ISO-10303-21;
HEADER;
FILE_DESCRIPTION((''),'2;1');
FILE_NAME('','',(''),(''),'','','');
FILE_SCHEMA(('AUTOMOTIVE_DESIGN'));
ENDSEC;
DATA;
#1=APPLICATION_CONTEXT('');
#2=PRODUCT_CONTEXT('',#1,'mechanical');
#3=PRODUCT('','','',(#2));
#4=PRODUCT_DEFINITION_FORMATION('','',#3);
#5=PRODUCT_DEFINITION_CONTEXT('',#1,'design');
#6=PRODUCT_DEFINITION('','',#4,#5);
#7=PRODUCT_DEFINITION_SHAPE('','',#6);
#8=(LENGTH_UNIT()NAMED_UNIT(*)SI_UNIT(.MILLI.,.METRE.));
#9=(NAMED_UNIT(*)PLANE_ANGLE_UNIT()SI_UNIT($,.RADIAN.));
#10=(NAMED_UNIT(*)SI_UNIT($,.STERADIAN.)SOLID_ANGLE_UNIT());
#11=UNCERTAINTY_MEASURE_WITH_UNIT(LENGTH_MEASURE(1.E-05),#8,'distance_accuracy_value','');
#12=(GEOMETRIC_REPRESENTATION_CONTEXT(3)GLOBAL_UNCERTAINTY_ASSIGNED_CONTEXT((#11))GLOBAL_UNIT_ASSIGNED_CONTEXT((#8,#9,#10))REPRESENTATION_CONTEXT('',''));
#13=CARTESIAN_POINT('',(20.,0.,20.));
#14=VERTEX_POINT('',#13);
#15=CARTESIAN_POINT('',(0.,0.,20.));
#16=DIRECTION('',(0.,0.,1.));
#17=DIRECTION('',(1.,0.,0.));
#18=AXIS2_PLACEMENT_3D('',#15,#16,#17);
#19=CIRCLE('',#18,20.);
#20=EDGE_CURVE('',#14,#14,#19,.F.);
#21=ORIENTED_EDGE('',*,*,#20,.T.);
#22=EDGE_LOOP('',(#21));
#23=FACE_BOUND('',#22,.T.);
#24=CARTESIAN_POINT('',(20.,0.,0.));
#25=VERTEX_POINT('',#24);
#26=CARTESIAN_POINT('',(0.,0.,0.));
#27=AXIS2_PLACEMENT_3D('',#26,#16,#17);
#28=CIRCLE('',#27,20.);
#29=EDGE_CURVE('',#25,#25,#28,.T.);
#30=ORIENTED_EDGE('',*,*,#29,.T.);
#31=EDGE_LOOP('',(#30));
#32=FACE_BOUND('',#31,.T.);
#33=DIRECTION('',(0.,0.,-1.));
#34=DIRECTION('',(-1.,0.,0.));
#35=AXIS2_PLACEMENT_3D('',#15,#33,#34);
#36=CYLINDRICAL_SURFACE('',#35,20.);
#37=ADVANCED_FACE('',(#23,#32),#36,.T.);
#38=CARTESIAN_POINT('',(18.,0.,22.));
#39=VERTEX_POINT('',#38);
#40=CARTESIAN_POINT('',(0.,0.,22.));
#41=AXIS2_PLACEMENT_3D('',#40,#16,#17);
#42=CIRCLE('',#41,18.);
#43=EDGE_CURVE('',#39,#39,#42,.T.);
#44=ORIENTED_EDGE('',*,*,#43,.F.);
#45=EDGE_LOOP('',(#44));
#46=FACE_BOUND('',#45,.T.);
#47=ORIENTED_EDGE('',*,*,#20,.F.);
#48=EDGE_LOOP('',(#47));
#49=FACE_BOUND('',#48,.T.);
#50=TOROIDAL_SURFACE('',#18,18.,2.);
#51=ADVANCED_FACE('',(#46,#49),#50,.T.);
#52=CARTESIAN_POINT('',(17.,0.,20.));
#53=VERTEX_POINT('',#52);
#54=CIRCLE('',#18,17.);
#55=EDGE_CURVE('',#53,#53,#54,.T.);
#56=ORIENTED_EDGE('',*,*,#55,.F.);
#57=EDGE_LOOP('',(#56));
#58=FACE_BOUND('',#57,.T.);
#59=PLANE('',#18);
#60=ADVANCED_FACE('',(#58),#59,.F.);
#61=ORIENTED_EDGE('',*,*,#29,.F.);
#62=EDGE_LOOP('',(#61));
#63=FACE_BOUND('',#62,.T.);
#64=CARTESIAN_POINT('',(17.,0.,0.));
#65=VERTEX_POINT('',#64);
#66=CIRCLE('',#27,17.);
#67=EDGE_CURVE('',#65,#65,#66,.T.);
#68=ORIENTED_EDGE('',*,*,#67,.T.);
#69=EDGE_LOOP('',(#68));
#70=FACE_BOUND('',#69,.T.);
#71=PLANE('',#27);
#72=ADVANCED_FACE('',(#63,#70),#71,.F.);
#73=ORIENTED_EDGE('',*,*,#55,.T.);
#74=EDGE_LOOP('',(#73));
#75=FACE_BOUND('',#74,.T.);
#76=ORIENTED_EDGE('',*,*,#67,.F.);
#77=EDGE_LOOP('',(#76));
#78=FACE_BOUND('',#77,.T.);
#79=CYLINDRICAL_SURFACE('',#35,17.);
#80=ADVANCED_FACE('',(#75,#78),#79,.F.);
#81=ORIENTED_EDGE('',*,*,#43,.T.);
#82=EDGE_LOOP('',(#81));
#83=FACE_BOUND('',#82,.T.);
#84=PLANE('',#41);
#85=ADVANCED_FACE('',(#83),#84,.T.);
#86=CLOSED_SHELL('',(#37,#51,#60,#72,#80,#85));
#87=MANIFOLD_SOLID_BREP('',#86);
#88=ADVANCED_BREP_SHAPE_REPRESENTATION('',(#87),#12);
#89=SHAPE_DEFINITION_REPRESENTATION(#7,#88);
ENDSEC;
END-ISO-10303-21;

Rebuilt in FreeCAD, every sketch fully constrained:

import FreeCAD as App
import Part
import Sketcher


def edges_at(feature, points):
    """Names of the edges that pass closest to the given points."""
    edges = feature.Shape.Edges
    near = lambda p: min(range(len(edges)), key=lambda i: edges[i].distToShape(Part.Vertex(*p))[0])
    return sorted({f"Edge{near(p) + 1}" for p in points})

doc = App.newDocument("Part")
body = doc.addObject("PartDesign::Body", "Body")

# Sketch on XY plane
sketch1 = doc.addObject("Sketcher::SketchObject", "Sketch")
body.addObject(sketch1)
sketch1.AttachmentSupport = (doc.XY_Plane, [""])
sketch1.MapMode = "FlatFace"
sketch1.addGeometry(Part.Circle(App.Vector(0, 0, 0), App.Vector(0, 0, 1), 20), False)
sketch1.addGeometry(Part.Circle(App.Vector(0, 0, 0), App.Vector(0, 0, 1), 17), False)
sketch1.addConstraint(Sketcher.Constraint("Coincident", 0, 3, -1, 1))
sketch1.addConstraint(Sketcher.Constraint("Coincident", 1, 3, -1, 1))
sketch1.addConstraint(Sketcher.Constraint("Diameter", 0, 40.0))
sketch1.addConstraint(Sketcher.Constraint("Diameter", 1, 34.0))
pad1 = doc.addObject("PartDesign::Pad", "Pad")
body.addObject(pad1)
pad1.Profile = sketch1
pad1.Length = 20

# Sketch on XY plane
sketch2 = doc.addObject("Sketcher::SketchObject", "Sketch001")
body.addObject(sketch2)
sketch2.AttachmentSupport = (doc.XY_Plane, [""])
sketch2.MapMode = "FlatFace"
sketch2.AttachmentOffset = App.Placement(App.Vector(0, 0, 20), App.Rotation())
sketch2.addGeometry(Part.Circle(App.Vector(0, 0, 0), App.Vector(0, 0, 1), 20), False)
sketch2.addConstraint(Sketcher.Constraint("Coincident", 0, 3, -1, 1))
sketch2.addConstraint(Sketcher.Constraint("Diameter", 0, 40.0))
pad2 = doc.addObject("PartDesign::Pad", "Pad001")
body.addObject(pad2)
pad2.Profile = sketch2
pad2.Length = 2
doc.recompute()

fillet = doc.addObject("PartDesign::Fillet", "Fillet")
body.addObject(fillet)
fillet.Base = (pad2, edges_at(pad2, [(-20, 0, 22)]))
fillet.Radius = 2

doc.recompute()
